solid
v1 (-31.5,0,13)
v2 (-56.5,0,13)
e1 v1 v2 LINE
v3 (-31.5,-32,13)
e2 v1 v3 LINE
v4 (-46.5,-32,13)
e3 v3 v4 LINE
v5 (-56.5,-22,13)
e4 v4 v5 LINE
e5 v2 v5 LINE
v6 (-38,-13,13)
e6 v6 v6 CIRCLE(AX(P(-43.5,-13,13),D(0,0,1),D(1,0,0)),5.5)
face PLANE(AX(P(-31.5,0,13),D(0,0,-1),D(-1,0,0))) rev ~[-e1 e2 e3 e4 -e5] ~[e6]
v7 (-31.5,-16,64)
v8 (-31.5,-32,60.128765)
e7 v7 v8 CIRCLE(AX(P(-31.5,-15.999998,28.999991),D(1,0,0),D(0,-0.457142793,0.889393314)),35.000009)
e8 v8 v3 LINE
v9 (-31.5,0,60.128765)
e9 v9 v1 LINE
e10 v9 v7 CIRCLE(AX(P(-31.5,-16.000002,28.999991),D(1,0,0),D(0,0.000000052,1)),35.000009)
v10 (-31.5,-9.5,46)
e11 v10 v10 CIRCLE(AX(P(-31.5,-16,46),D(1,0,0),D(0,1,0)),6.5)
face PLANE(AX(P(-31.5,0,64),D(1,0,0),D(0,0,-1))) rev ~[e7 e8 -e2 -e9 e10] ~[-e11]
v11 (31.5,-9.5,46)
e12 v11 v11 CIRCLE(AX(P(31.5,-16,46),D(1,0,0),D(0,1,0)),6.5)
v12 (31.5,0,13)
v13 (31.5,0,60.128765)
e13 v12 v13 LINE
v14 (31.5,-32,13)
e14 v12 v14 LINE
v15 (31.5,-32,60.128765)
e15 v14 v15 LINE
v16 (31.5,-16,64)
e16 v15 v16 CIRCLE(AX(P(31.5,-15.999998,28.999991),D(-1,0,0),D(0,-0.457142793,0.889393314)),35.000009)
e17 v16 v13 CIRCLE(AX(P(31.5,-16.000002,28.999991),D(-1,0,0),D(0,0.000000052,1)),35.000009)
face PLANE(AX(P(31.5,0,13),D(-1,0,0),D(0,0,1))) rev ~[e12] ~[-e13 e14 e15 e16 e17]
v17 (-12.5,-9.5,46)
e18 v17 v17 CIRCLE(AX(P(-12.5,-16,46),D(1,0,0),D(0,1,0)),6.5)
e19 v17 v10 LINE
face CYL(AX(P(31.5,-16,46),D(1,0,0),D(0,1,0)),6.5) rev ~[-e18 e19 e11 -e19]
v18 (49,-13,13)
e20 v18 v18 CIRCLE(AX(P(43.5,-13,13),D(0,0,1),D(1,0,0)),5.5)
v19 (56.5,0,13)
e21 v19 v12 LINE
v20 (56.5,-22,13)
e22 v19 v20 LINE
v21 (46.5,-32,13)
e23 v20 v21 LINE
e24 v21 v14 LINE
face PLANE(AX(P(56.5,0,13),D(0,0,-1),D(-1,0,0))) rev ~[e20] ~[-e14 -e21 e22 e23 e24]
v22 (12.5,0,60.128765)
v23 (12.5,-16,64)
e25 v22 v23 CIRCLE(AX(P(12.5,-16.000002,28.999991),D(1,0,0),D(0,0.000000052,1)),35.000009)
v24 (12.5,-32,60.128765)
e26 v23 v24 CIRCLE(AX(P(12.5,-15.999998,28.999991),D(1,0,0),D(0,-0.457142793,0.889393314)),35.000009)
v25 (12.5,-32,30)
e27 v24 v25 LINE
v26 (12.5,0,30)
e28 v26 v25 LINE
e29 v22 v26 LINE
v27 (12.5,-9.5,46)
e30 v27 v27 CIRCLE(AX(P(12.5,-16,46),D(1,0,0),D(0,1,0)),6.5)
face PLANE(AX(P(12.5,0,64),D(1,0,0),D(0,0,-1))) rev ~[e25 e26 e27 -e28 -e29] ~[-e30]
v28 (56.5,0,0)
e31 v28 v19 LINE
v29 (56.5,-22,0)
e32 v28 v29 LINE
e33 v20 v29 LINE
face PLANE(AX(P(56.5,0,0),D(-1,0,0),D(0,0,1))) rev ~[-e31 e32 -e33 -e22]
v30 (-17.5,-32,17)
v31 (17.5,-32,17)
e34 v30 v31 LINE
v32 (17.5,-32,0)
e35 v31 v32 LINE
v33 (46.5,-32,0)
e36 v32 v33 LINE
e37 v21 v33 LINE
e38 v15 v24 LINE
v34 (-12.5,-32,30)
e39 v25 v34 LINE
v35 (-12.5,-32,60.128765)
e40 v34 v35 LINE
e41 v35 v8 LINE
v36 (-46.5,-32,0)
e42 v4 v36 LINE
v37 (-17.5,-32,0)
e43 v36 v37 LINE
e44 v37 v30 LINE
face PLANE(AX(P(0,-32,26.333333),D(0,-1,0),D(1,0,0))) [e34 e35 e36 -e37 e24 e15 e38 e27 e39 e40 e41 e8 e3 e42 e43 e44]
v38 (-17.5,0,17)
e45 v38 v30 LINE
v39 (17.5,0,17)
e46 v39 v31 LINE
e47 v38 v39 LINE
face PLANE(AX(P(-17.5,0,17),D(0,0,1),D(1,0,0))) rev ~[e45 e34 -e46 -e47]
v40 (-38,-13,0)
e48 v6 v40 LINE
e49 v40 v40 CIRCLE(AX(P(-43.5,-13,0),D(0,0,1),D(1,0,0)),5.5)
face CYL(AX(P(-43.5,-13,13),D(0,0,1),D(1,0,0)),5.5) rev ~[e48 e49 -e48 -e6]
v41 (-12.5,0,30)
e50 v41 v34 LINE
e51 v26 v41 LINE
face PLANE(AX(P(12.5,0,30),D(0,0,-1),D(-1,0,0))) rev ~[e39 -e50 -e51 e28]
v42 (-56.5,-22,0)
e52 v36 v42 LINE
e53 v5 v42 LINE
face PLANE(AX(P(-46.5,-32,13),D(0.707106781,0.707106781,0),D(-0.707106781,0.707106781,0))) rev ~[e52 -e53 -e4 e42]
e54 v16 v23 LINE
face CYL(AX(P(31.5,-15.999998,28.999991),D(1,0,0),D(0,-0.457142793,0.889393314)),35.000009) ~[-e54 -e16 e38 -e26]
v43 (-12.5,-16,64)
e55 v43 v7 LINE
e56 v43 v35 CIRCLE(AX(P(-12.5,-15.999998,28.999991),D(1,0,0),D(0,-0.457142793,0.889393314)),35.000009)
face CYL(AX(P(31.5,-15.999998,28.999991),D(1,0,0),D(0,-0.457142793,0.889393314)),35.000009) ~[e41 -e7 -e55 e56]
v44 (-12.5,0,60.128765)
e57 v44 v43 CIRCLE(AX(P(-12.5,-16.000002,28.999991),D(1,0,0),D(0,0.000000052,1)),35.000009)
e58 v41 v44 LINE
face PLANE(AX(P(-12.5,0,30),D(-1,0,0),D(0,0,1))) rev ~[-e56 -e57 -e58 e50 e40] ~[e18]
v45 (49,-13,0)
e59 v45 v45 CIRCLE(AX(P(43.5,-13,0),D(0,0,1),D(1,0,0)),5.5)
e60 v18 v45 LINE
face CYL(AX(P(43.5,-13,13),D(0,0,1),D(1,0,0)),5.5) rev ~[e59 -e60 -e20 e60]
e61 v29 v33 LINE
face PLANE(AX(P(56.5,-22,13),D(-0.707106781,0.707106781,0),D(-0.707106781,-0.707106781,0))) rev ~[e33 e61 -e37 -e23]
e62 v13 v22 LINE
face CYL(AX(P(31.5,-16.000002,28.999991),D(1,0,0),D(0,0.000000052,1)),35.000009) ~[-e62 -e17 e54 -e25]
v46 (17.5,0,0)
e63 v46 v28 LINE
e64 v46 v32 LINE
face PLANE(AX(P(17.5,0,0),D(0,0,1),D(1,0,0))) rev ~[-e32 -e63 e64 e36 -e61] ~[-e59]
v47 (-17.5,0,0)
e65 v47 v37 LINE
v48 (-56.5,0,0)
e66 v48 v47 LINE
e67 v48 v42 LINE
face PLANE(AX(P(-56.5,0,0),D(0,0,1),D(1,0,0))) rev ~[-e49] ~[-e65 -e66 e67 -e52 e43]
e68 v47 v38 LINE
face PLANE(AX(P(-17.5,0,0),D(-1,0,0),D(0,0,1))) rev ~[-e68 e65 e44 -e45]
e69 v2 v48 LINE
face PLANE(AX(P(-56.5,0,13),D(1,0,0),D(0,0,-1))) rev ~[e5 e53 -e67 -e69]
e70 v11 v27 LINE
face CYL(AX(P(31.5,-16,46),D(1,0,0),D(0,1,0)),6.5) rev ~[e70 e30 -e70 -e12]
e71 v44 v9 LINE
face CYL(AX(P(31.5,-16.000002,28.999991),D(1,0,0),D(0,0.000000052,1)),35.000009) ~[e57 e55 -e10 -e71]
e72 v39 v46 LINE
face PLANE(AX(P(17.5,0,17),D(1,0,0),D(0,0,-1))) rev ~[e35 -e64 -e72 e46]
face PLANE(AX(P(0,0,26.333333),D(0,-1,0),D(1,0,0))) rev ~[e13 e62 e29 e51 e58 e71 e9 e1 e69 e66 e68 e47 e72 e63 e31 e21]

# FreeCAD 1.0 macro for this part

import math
import FreeCAD as App
import Part
import Sketcher

V = App.Vector

doc = App.newDocument("Part")
body = doc.addObject("PartDesign::Body", "Body")

sketch1 = doc.addObject("Sketcher::SketchObject", "Sketch")
body.addObject(sketch1)
sketch1.AttachmentSupport = (doc.XZ_Plane, [""])
sketch1.MapMode = "FlatFace"
sketch1.addGeometry(Part.LineSegment(V(-18, 17, 0), V(18, 17, 0)), False)
sketch1.addGeometry(Part.LineSegment(V(18, 17, 0), V(18, 0, 0)), False)
sketch1.addGeometry(Part.LineSegment(V(18, 0, 0), V(56, 0, 0)), False)
sketch1.addGeometry(Part.LineSegment(V(56, 0, 0), V(56, 13, 0)), False)
sketch1.addGeometry(Part.LineSegment(V(56, 13, 0), V(32, 13, 0)), False)
sketch1.addGeometry(Part.LineSegment(V(32, 13, 0), V(32, 64, 0)), False)
sketch1.addGeometry(Part.LineSegment(V(32, 64, 0), V(12, 64, 0)), False)
sketch1.addGeometry(Part.LineSegment(V(12, 64, 0), V(12, 30, 0)), False)
sketch1.addGeometry(Part.LineSegment(V(12, 30, 0), V(-12, 30, 0)), False)
sketch1.addGeometry(Part.LineSegment(V(-12, 30, 0), V(-12, 64, 0)), False)
sketch1.addGeometry(Part.LineSegment(V(-12, 64, 0), V(-32, 64, 0)), False)
sketch1.addGeometry(Part.LineSegment(V(-32, 64, 0), V(-32, 13, 0)), False)
sketch1.addGeometry(Part.LineSegment(V(-32, 13, 0), V(-56, 13, 0)), False)
sketch1.addGeometry(Part.LineSegment(V(-56, 13, 0), V(-56, 0, 0)), False)
sketch1.addGeometry(Part.LineSegment(V(-56, 0, 0), V(-18, 0, 0)), False)
sketch1.addGeometry(Part.LineSegment(V(-18, 0, 0), V(-18, 17, 0)), False)
sketch1.addConstraint(Sketcher.Constraint("Coincident", 0, 2, 1, 1))
sketch1.addConstraint(Sketcher.Constraint("Coincident", 1, 2, 2, 1))
sketch1.addConstraint(Sketcher.Constraint("Coincident", 2, 2, 3, 1))
sketch1.addConstraint(Sketcher.Constraint("Coincident", 3, 2, 4, 1))
sketch1.addConstraint(Sketcher.Constraint("Coincident", 4, 2, 5, 1))
sketch1.addConstraint(Sketcher.Constraint("Coincident", 5, 2, 6, 1))
sketch1.addConstraint(Sketcher.Constraint("Coincident", 6, 2, 7, 1))
sketch1.addConstraint(Sketcher.Constraint("Coincident", 7, 2, 8, 1))
sketch1.addConstraint(Sketcher.Constraint("Coincident", 8, 2, 9, 1))
sketch1.addConstraint(Sketcher.Constraint("Coincident", 9, 2, 10, 1))
sketch1.addConstraint(Sketcher.Constraint("Coincident", 10, 2, 11, 1))
sketch1.addConstraint(Sketcher.Constraint("Coincident", 11, 2, 12, 1))
sketch1.addConstraint(Sketcher.Constraint("Coincident", 12, 2, 13, 1))
sketch1.addConstraint(Sketcher.Constraint("Coincident", 13, 2, 14, 1))
sketch1.addConstraint(Sketcher.Constraint("Coincident", 14, 2, 15, 1))
sketch1.addConstraint(Sketcher.Constraint("Coincident", 15, 2, 0, 1))
sketch1.addConstraint(Sketcher.Constraint("Horizontal", 0))
sketch1.addConstraint(Sketcher.Constraint("Vertical", 1))
sketch1.addConstraint(Sketcher.Constraint("Horizontal", 2))
sketch1.addConstraint(Sketcher.Constraint("Vertical", 3))
sketch1.addConstraint(Sketcher.Constraint("Horizontal", 4))
sketch1.addConstraint(Sketcher.Constraint("Vertical", 5))
sketch1.addConstraint(Sketcher.Constraint("Horizontal", 6))
sketch1.addConstraint(Sketcher.Constraint("Vertical", 7))
sketch1.addConstraint(Sketcher.Constraint("Horizontal", 8))
sketch1.addConstraint(Sketcher.Constraint("Vertical", 9))
sketch1.addConstraint(Sketcher.Constraint("Horizontal", 10))
sketch1.addConstraint(Sketcher.Constraint("Vertical", 11))
sketch1.addConstraint(Sketcher.Constraint("Horizontal", 12))
sketch1.addConstraint(Sketcher.Constraint("Vertical", 13))
sketch1.addConstraint(Sketcher.Constraint("Horizontal", 14))
sketch1.addConstraint(Sketcher.Constraint("Vertical", 15))
sketch1.addConstraint(Sketcher.Constraint("Symmetric", 2, 2, 13, 2, -1, 1))
sketch1.addConstraint(Sketcher.Constraint("Symmetric", 6, 2, 9, 2, -2))
sketch1.addConstraint(Sketcher.Constraint("Symmetric", 4, 2, 11, 2, -2))
sketch1.addConstraint(Sketcher.Constraint("Symmetric", 1, 2, 14, 2, -2))
sketch1.addConstraint(Sketcher.Constraint("Equal", 4, 8))
sketch1.addConstraint(Sketcher.Constraint("DistanceX", 0, 1, 0, 2, 35.0))
sketch1.addConstraint(Sketcher.Constraint("DistanceX", 2, 1, 2, 2, 39.0))
sketch1.addConstraint(Sketcher.Constraint("DistanceX", 4, 2, 4, 1, 25.0))
sketch1.addConstraint(Sketcher.Constraint("DistanceY", 1, 2, 1, 1, 17.0))
sketch1.addConstraint(Sketcher.Constraint("DistanceY", 3, 1, 3, 2, 13.0))
sketch1.addConstraint(Sketcher.Constraint("DistanceY", 5, 1, 5, 2, 51.0))
sketch1.addConstraint(Sketcher.Constraint("DistanceY", 7, 2, 7, 1, 34.0))
pad1 = doc.addObject("PartDesign::Pad", "Pad")
body.addObject(pad1)
pad1.Profile = sketch1
pad1.Length = 32

sketch2 = doc.addObject("Sketcher::SketchObject", "Sketch001")
body.addObject(sketch2)
sketch2.AttachmentSupport = (doc.XY_Plane, [""])
sketch2.MapMode = "FlatFace"
sketch2.AttachmentOffset = App.Placement(V(0, 0, 13), App.Rotation())
sketch2.addGeometry(Part.Circle(V(-44, -13, 0), V(0, 0, 1), 6), False)
sketch2.addGeometry(Part.LineSegment(V(-46, -32, 0), V(-56, -22, 0)), False)
sketch2.addGeometry(Part.LineSegment(V(-56, -22, 0), V(-56, -32, 0)), False)
sketch2.addGeometry(Part.LineSegment(V(-56, -32, 0), V(-46, -32, 0)), False)
sketch2.addGeometry(Part.LineSegment(V(56, -22, 0), V(46, -32, 0)), False)
sketch2.addGeometry(Part.LineSegment(V(46, -32, 0), V(56, -32, 0)), False)
sketch2.addGeometry(Part.LineSegment(V(56, -32, 0), V(56, -22, 0)), False)
sketch2.addGeometry(Part.Circle(V(44, -13, 0), V(0, 0, 1), 6), False)
sketch2.addConstraint(Sketcher.Constraint("Coincident", 1, 2, 2, 1))
sketch2.addConstraint(Sketcher.Constraint("Coincident", 2, 2, 3, 1))
sketch2.addConstraint(Sketcher.Constraint("Coincident", 3, 2, 1, 1))
sketch2.addConstraint(Sketcher.Constraint("Coincident", 4, 2, 5, 1))
sketch2.addConstraint(Sketcher.Constraint("Coincident", 5, 2, 6, 1))
sketch2.addConstraint(Sketcher.Constraint("Coincident", 6, 2, 4, 1))
sketch2.addConstraint(Sketcher.Constraint("Vertical", 2))
sketch2.addConstraint(Sketcher.Constraint("Horizontal", 3))
sketch2.addConstraint(Sketcher.Constraint("Horizontal", 5))
sketch2.addConstraint(Sketcher.Constraint("Vertical", 6))
sketch2.addConstraint(Sketcher.Constraint("Equal", 0, 7))
sketch2.addConstraint(Sketcher.Constraint("Symmetric", 0, 3, 7, 3, -2))
sketch2.addConstraint(Sketcher.Constraint("Symmetric", 3, 2, 4, 2, -2))
sketch2.addConstraint(Sketcher.Constraint("Symmetric", 1, 2, 6, 2, -2))
sketch2.addConstraint(Sketcher.Constraint("Perpendicular", 1, 4))
sketch2.addConstraint(Sketcher.Constraint("Diameter", 0, 11.0))
sketch2.addConstraint(Sketcher.Constraint("DistanceX", 3, 1, 3, 2, 10.0))
sketch2.addConstraint(Sketcher.Constraint("DistanceY", 0, 3, -1, 1, 13.0))
sketch2.addConstraint(Sketcher.Constraint("DistanceY", 1, 2, -1, 1, 22.0))
sketch2.addConstraint(Sketcher.Constraint("DistanceX", 0, 3, 7, 3, 87.0))
sketch2.addConstraint(Sketcher.Constraint("DistanceX", 1, 2, 0, 3, 13.0))
pocket1 = doc.addObject("PartDesign::Pocket", "Pocket")
body.addObject(pocket1)
pocket1.Profile = sketch2
pocket1.Type = "ThroughAll"

sketch3 = doc.addObject("Sketcher::SketchObject", "Sketch002")
body.addObject(sketch3)
sketch3.AttachmentSupport = (doc.YZ_Plane, [""])
sketch3.MapMode = "FlatFace"
sketch3.AttachmentOffset = App.Placement(V(0, 0, 31.5), App.Rotation())
sketch3.addGeometry(Part.Circle(V(-16, 46, 0), V(0, 0, 1), 6), False)
sketch3.addConstraint(Sketcher.Constraint("Diameter", 0, 13.0))
sketch3.addConstraint(Sketcher.Constraint("DistanceX", 0, 3, -1, 1, 16.0))
sketch3.addConstraint(Sketcher.Constraint("DistanceY", -1, 1, 0, 3, 46.0))
pocket2 = doc.addObject("PartDesign::Pocket", "Pocket001")
body.addObject(pocket2)
pocket2.Profile = sketch3
pocket2.Type = "ThroughAll"

sketch4 = doc.addObject("Sketcher::SketchObject", "Sketch003")
body.addObject(sketch4)
sketch4.AttachmentSupport = (doc.YZ_Plane, [""])
sketch4.MapMode = "FlatFace"
sketch4.AttachmentOffset = App.Placement(V(0, 0, 31.5), App.Rotation())
sketch4.addGeometry(Part.ArcOfCircle(Part.Circle(V(-16, 29, 0), V(0, 0, 1), 35), math.radians(90), math.radians(117)), False)
sketch4.addGeometry(Part.LineSegment(V(-16, 64, 0), V(-32, 64, 0)), False)
sketch4.addGeometry(Part.LineSegment(V(-32, 64, 0), V(-32, 60.1, 0)), False)
sketch4.addGeometry(Part.ArcOfCircle(Part.Circle(V(-16, 29, 0), V(0, 0, 1), 35), math.radians(63), math.radians(90)), False)
sketch4.addGeometry(Part.LineSegment(V(0, 60.1, 0), V(0, 64, 0)), False)
sketch4.addGeometry(Part.LineSegment(V(0, 64, 0), V(-16, 64, 0)), False)
sketch4.addConstraint(Sketcher.Constraint("Tangent", 0, 1, 1, 1))
sketch4.addConstraint(Sketcher.Constraint("Coincident", 1, 2, 2, 1))
sketch4.addConstraint(Sketcher.Constraint("Coincident", 2, 2, 0, 2))
sketch4.addConstraint(Sketcher.Constraint("Coincident", 3, 1, 4, 1))
sketch4.addConstraint(Sketcher.Constraint("Coincident", 4, 2, 5, 1))
sketch4.addConstraint(Sketcher.Constraint("Tangent", 5, 2, 3, 2))
sketch4.addConstraint(Sketcher.Constraint("Horizontal", 1))
sketch4.addConstraint(Sketcher.Constraint("Vertical", 2))
sketch4.addConstraint(Sketcher.Constraint("Vertical", 4))
sketch4.addConstraint(Sketcher.Constraint("Horizontal", 5))
sketch4.addConstraint(Sketcher.Constraint("Coincident", 3, 3, 0, 3))
sketch4.addConstraint(Sketcher.Constraint("Equal", 0, 3))
sketch4.addConstraint(Sketcher.Constraint("PointOnObject", 3, 1, -2))
sketch4.addConstraint(Sketcher.Constraint("Horizontal", 2, 2, 3, 1))
sketch4.addConstraint(Sketcher.Constraint("DistanceX", 1, 2, 1, 1, 16.0))
sketch4.addConstraint(Sketcher.Constraint("DistanceY", -1, 1, 0, 1, 64.0))
sketch4.addConstraint(Sketcher.Constraint("Radius", 0, 35.000009))
pocket3 = doc.addObject("PartDesign::Pocket", "Pocket002")
body.addObject(pocket3)
pocket3.Profile = sketch4
pocket3.Type = "ThroughAll"

doc.recompute()
